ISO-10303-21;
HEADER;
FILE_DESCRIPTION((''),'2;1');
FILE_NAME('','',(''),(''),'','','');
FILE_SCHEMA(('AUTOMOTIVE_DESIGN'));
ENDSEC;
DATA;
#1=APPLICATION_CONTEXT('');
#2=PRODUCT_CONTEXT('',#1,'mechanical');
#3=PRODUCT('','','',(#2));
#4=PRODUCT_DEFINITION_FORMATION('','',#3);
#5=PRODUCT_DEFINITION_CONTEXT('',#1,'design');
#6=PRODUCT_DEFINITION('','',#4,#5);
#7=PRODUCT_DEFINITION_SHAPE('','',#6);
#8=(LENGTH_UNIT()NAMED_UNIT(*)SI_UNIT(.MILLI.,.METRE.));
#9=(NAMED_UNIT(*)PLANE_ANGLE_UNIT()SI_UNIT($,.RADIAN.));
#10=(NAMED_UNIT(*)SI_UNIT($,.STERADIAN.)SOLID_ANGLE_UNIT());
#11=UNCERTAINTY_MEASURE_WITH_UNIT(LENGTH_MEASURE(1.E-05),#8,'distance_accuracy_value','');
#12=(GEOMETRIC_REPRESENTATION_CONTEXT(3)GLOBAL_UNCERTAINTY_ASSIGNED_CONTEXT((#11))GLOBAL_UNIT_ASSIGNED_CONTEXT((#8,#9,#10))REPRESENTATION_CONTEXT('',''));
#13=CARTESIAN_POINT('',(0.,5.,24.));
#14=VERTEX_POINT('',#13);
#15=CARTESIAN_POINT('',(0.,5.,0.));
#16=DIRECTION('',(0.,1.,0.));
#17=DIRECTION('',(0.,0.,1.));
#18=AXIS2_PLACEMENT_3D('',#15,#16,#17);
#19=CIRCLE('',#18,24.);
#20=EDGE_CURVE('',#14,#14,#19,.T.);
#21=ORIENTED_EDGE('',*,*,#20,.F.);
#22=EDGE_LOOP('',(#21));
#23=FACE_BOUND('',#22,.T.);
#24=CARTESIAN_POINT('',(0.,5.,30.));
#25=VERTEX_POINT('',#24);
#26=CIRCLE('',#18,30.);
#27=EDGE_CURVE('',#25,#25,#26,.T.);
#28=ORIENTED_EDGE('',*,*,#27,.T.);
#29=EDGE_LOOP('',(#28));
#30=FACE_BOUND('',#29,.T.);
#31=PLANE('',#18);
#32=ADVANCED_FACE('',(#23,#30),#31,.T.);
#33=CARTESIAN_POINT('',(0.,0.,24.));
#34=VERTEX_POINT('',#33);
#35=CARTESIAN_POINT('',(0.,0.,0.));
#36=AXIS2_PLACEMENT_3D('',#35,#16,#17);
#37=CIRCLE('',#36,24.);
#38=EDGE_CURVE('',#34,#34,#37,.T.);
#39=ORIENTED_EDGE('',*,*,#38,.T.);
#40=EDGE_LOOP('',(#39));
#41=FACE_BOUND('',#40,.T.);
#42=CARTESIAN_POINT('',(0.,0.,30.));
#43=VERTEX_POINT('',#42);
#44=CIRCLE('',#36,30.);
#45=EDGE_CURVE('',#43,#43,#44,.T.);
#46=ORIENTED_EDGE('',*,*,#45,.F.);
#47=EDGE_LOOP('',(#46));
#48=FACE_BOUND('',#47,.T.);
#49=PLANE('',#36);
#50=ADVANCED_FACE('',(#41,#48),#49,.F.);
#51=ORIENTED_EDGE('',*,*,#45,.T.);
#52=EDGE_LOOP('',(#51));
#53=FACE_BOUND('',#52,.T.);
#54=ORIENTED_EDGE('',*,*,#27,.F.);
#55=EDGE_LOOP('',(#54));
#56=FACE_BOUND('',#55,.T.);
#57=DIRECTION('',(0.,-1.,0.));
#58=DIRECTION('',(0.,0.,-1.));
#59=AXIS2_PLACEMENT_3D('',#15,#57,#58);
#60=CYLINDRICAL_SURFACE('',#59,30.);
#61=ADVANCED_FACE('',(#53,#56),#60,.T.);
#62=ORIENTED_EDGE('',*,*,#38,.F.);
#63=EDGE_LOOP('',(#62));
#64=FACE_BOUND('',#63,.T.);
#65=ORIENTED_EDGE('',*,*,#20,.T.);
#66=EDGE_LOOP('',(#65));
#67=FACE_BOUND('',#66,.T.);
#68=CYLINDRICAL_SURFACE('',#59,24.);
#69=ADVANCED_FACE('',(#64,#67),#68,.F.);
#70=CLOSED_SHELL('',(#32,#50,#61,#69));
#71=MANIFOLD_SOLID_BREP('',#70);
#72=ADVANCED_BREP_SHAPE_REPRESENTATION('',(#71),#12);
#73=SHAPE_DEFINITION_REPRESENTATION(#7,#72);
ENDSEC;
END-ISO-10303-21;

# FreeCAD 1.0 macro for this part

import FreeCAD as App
import Part
import Sketcher

V = App.Vector

doc = App.newDocument("Part")
body = doc.addObject("PartDesign::Body", "Body")

# Sketch on XZ plane
sketch1 = doc.addObject("Sketcher::SketchObject", "Sketch")
body.addObject(sketch1)
sketch1.AttachmentSupport = (doc.XZ_Plane, [""])
sketch1.MapMode = "FlatFace"
sketch1.addGeometry(Part.Circle(V(0, 0, 0), V(0, 0, 1), 30), False)
sketch1.addGeometry(Part.Circle(V(0, 0, 0), V(0, 0, 1), 24), False)
sketch1.addConstraint(Sketcher.Constraint("Coincident", 0, 3, -1, 1))
sketch1.addConstraint(Sketcher.Constraint("Coincident", 1, 3, -1, 1))
sketch1.addConstraint(Sketcher.Constraint("Diameter", 0, 60.0))
sketch1.addConstraint(Sketcher.Constraint("Diameter", 1, 48.0))
pad1 = doc.addObject("PartDesign::Pad", "Pad")
body.addObject(pad1)
pad1.Profile = sketch1
pad1.Length = 5
pad1.Reversed = True

doc.recompute()
